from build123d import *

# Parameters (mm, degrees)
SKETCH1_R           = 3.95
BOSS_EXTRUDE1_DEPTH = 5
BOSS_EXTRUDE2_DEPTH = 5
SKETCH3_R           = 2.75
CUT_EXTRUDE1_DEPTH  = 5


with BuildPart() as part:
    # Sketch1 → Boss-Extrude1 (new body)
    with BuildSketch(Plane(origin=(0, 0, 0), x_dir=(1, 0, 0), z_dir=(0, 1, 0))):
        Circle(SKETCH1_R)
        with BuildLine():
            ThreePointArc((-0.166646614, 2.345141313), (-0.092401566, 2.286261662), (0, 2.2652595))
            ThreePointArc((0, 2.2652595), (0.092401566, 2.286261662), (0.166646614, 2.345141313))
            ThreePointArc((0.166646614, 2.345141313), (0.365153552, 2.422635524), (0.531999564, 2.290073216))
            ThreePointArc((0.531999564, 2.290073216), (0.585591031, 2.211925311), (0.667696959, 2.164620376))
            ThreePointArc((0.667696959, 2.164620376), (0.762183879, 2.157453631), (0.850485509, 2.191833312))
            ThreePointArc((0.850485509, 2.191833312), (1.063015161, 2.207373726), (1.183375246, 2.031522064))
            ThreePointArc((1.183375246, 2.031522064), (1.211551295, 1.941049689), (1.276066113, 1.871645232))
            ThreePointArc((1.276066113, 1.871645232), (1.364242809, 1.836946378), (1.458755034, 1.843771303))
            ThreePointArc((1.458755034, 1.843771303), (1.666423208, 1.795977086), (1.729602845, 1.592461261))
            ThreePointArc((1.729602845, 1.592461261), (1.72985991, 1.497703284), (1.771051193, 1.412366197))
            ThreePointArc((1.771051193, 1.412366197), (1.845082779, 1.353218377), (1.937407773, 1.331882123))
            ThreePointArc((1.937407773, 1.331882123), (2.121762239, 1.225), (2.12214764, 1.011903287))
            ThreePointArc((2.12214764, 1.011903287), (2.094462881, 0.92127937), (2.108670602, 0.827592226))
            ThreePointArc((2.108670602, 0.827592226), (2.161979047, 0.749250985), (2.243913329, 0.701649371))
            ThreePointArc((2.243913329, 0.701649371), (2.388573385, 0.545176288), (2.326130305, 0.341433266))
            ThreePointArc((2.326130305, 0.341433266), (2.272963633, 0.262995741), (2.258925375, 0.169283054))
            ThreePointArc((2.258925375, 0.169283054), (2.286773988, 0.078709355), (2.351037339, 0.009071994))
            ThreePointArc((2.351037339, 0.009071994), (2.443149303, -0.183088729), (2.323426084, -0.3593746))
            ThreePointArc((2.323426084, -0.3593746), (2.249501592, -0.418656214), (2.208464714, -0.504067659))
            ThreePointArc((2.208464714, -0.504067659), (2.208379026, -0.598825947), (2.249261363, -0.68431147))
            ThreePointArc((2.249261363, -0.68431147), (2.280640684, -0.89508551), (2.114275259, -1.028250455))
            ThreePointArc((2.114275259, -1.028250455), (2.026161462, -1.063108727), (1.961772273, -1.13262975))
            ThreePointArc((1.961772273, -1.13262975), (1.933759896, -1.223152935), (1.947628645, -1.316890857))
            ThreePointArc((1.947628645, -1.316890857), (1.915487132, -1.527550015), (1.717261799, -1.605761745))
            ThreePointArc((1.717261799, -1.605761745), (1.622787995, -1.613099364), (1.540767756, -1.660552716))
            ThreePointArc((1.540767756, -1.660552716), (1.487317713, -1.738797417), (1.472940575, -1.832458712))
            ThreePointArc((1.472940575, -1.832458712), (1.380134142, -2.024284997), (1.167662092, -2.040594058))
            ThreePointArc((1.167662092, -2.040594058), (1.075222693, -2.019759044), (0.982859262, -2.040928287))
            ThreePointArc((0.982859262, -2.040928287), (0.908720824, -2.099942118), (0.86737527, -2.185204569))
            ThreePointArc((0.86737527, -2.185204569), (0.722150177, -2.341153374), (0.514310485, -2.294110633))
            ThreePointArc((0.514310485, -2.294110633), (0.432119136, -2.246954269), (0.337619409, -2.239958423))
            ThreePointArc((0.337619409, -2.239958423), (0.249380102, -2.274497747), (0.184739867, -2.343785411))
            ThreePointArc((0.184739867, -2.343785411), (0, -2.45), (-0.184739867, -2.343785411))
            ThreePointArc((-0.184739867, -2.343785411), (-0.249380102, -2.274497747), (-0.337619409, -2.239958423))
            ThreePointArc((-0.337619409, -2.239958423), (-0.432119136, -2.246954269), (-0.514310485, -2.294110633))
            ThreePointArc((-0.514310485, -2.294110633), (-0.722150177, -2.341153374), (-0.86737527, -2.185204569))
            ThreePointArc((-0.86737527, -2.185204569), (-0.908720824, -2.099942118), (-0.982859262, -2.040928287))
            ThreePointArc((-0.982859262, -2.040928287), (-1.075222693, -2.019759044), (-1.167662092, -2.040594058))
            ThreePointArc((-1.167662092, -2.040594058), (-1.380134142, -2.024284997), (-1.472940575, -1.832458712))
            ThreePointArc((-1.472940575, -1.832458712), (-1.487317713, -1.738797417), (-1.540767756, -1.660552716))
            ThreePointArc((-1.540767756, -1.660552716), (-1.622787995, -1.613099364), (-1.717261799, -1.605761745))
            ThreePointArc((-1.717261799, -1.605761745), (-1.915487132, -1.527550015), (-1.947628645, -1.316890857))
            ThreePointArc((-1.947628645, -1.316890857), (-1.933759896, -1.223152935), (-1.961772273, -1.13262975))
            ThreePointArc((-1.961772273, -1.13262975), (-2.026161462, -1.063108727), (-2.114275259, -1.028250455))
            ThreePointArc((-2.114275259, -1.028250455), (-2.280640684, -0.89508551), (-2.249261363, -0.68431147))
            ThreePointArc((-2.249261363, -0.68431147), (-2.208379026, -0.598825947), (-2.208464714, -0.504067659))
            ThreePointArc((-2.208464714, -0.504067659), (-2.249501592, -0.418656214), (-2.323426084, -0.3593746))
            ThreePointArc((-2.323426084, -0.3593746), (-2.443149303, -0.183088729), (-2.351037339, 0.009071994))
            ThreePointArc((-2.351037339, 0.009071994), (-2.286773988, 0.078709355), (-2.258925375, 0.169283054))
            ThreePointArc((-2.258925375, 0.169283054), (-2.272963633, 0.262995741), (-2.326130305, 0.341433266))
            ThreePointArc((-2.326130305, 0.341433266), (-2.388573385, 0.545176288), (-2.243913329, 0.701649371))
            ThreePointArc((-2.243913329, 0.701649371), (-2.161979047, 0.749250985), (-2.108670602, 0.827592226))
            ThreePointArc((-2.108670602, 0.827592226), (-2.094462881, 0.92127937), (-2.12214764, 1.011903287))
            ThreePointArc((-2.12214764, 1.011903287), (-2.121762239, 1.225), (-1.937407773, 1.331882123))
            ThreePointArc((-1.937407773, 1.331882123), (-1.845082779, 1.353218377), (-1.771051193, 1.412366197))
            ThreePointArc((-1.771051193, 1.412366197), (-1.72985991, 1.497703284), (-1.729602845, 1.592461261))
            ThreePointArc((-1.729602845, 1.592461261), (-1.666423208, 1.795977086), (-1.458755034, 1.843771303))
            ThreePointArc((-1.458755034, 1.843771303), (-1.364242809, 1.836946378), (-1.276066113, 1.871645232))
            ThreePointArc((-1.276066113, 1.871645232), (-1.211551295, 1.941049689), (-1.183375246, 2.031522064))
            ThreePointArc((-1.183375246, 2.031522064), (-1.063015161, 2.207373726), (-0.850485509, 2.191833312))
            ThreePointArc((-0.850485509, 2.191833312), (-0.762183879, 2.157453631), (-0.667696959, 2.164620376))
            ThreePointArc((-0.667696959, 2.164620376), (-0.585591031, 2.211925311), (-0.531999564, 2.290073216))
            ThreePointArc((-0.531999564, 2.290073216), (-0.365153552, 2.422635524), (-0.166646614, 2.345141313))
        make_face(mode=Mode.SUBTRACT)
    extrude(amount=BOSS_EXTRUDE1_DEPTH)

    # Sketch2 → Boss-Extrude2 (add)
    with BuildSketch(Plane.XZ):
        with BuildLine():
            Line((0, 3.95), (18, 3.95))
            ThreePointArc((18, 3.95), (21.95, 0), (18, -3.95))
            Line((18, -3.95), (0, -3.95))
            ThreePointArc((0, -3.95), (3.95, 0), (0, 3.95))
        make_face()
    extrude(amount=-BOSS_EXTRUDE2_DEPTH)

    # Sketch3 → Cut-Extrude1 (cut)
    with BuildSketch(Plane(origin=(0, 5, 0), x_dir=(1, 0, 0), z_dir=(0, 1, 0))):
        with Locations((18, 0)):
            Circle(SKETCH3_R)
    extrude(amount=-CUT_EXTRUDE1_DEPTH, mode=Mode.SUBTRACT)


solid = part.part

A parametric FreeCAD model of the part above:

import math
import FreeCAD as App
import Part
import Sketcher
Q = App.Units.Quantity

doc = App.newDocument("Part")
body = doc.addObject("PartDesign::Body", "Body")

sketch1 = body.newObject("Sketcher::SketchObject", "Sketch")
sketch1.AttachmentSupport = (doc.getObject("XZ_Plane"), [""])
sketch1.MapMode = "FlatFace"
sketch1.addGeometry([
    Part.Circle(App.Vector(0, 0, 0), App.Vector(0, 0, 1), 3.95),
    Part.ArcOfCircle(Part.Circle(App.Vector(-0.33, -2.21, 0), App.Vector(0, 0, 1), 0.21), math.radians(-158), math.radians(-39)),
    Part.ArcOfCircle(Part.Circle(App.Vector(0, -2.48, 0), App.Vector(0, 0, 1), 0.21), math.radians(90), math.radians(141)),
    Part.ArcOfCircle(Part.Circle(App.Vector(0, -2.48, 0), App.Vector(0, 0, 1), 0.21), math.radians(39), math.radians(90)),
    Part.ArcOfCircle(Part.Circle(App.Vector(0.33, -2.21, 0), App.Vector(0, 0, 1), 0.21), math.radians(-141), math.radians(-22)),
    Part.ArcOfCircle(Part.Circle(App.Vector(0.73, -2.37, 0), App.Vector(0, 0, 1), 0.21), math.radians(107), math.radians(158)),
    Part.ArcOfCircle(Part.Circle(App.Vector(0.73, -2.37, 0), App.Vector(0, 0, 1), 0.21), math.radians(56), math.radians(107)),
    Part.ArcOfCircle(Part.Circle(App.Vector(0.97, -2.01, 0), App.Vector(0, 0, 1), 0.21), math.radians(-124), math.radians(-4)),
    Part.ArcOfCircle(Part.Circle(App.Vector(1.4, -2.05, 0), App.Vector(0, 0, 1), 0.21), math.radians(124), math.radians(176)),
    Part.ArcOfCircle(Part.Circle(App.Vector(1.4, -2.05, 0), App.Vector(0, 0, 1), 0.21), math.radians(73), math.radians(124)),
    Part.ArcOfCircle(Part.Circle(App.Vector(1.52, -1.64, 0), App.Vector(0, 0, 1), 0.21), math.radians(-107), math.radians(13)),
    Part.ArcOfCircle(Part.Circle(App.Vector(1.94, -1.55, 0), App.Vector(0, 0, 1), 0.21), math.radians(141), math.radians(193)),
    Part.ArcOfCircle(Part.Circle(App.Vector(1.94, -1.55, 0), App.Vector(0, 0, 1), 0.21), math.radians(90), math.radians(141)),
    Part.ArcOfCircle(Part.Circle(App.Vector(1.94, -1.12, 0), App.Vector(0, 0, 1), 0.21), math.radians(-90), math.radians(30)),
    Part.ArcOfCircle(Part.Circle(App.Vector(2.31, -0.91, 0), App.Vector(0, 0, 1), 0.21), math.radians(159), math.radians(210)),
    Part.ArcOfCircle(Part.Circle(App.Vector(2.31, -0.91, 0), App.Vector(0, 0, 1), 0.21), math.radians(107), math.radians(159)),
    Part.ArcOfCircle(Part.Circle(App.Vector(2.18, -0.5, 0), App.Vector(0, 0, 1), 0.21), math.radians(-73), math.radians(47)),
    Part.ArcOfCircle(Part.Circle(App.Vector(2.47, -0.19, 0), App.Vector(0, 0, 1), 0.21), math.radians(176), math.radians(227)),
    Part.ArcOfCircle(Part.Circle(App.Vector(2.47, -0.19, 0), App.Vector(0, 0, 1), 0.21), math.radians(124), math.radians(176)),
    Part.ArcOfCircle(Part.Circle(App.Vector(2.23, 0.17, 0), App.Vector(0, 0, 1), 0.21), math.radians(-56), math.radians(64)),
    Part.ArcOfCircle(Part.Circle(App.Vector(2.42, 0.55, 0), App.Vector(0, 0, 1), 0.21), math.radians(-167), math.radians(-116)),
    Part.ArcOfCircle(Part.Circle(App.Vector(2.42, 0.55, 0), App.Vector(0, 0, 1), 0.21), math.radians(142), math.radians(193)),
    Part.ArcOfCircle(Part.Circle(App.Vector(2.08, 0.82, 0), App.Vector(0, 0, 1), 0.21), math.radians(-38), math.radians(81)),
    Part.ArcOfCircle(Part.Circle(App.Vector(2.15, 1.24, 0), App.Vector(0, 0, 1), 0.21), math.radians(-150), math.radians(-99)),
    Part.ArcOfCircle(Part.Circle(App.Vector(2.15, 1.24, 0), App.Vector(0, 0, 1), 0.21), math.radians(159), math.radians(210)),
    Part.ArcOfCircle(Part.Circle(App.Vector(1.75, 1.39, 0), App.Vector(0, 0, 1), 0.21), math.radians(-21), math.radians(98)),
    Part.ArcOfCircle(Part.Circle(App.Vector(1.69, 1.82, 0), App.Vector(0, 0, 1), 0.21), math.radians(-133), math.radians(-82)),
    Part.ArcOfCircle(Part.Circle(App.Vector(1.69, 1.82, 0), App.Vector(0, 0, 1), 0.21), math.radians(176), math.radians(227)),
    Part.ArcOfCircle(Part.Circle(App.Vector(1.26, 1.85, 0), App.Vector(0, 0, 1), 0.21), math.radians(-4), math.radians(116)),
    Part.ArcOfCircle(Part.Circle(App.Vector(1.08, 2.23, 0), App.Vector(0, 0, 1), 0.21), math.radians(-116), math.radians(-64)),
    Part.ArcOfCircle(Part.Circle(App.Vector(1.08, 2.23, 0), App.Vector(0, 0, 1), 0.21), math.radians(-167), math.radians(-116)),
    Part.ArcOfCircle(Part.Circle(App.Vector(0.66, 2.14, 0), App.Vector(0, 0, 1), 0.21), math.radians(13), math.radians(133)),
    Part.ArcOfCircle(Part.Circle(App.Vector(0.37, 2.45, 0), App.Vector(0, 0, 1), 0.21), math.radians(-99), math.radians(-47)),
    Part.ArcOfCircle(Part.Circle(App.Vector(0.37, 2.45, 0), App.Vector(0, 0, 1), 0.21), math.radians(-150), math.radians(-99)),
    Part.ArcOfCircle(Part.Circle(App.Vector(0, 2.24, 0), App.Vector(0, 0, 1), 0.21), math.radians(30), math.radians(150)),
    Part.ArcOfCircle(Part.Circle(App.Vector(-0.37, 2.45, 0), App.Vector(0, 0, 1), 0.21), math.radians(-81), math.radians(-30)),
    Part.ArcOfCircle(Part.Circle(App.Vector(-0.37, 2.45, 0), App.Vector(0, 0, 1), 0.21), math.radians(-133), math.radians(-81)),
    Part.ArcOfCircle(Part.Circle(App.Vector(-0.66, 2.14, 0), App.Vector(0, 0, 1), 0.21), math.radians(47), math.radians(167)),
    Part.ArcOfCircle(Part.Circle(App.Vector(-1.08, 2.23, 0), App.Vector(0, 0, 1), 0.21), math.radians(-64), math.radians(-13)),
    Part.ArcOfCircle(Part.Circle(App.Vector(-1.08, 2.23, 0), App.Vector(0, 0, 1), 0.21), math.radians(-116), math.radians(-64)),
    Part.ArcOfCircle(Part.Circle(App.Vector(-1.26, 1.85, 0), App.Vector(0, 0, 1), 0.21), math.radians(64), math.radians(184)),
    Part.ArcOfCircle(Part.Circle(App.Vector(-1.69, 1.82, 0), App.Vector(0, 0, 1), 0.21), math.radians(-47), math.radians(4)),
    Part.ArcOfCircle(Part.Circle(App.Vector(-1.69, 1.82, 0), App.Vector(0, 0, 1), 0.21), math.radians(-98), math.radians(-47)),
    Part.ArcOfCircle(Part.Circle(App.Vector(-1.75, 1.39, 0), App.Vector(0, 0, 1), 0.21), math.radians(82), math.radians(201)),
    Part.ArcOfCircle(Part.Circle(App.Vector(-2.15, 1.24, 0), App.Vector(0, 0, 1), 0.21), math.radians(-30), math.radians(21)),
    Part.ArcOfCircle(Part.Circle(App.Vector(-2.15, 1.24, 0), App.Vector(0, 0, 1), 0.21), math.radians(-81), math.radians(-30)),
    Part.ArcOfCircle(Part.Circle(App.Vector(-2.08, 0.82, 0), App.Vector(0, 0, 1), 0.21), math.radians(99), math.radians(218)),
    Part.ArcOfCircle(Part.Circle(App.Vector(-2.42, 0.55, 0), App.Vector(0, 0, 1), 0.21), math.radians(-13), math.radians(38)),
    Part.ArcOfCircle(Part.Circle(App.Vector(-2.42, 0.55, 0), App.Vector(0, 0, 1), 0.21), math.radians(-64), math.radians(-13)),
    Part.ArcOfCircle(Part.Circle(App.Vector(-2.23, 0.17, 0), App.Vector(0, 0, 1), 0.21), math.radians(116), math.radians(236)),
    Part.ArcOfCircle(Part.Circle(App.Vector(-2.47, -0.19, 0), App.Vector(0, 0, 1), 0.21), math.radians(4), math.radians(56)),
    Part.ArcOfCircle(Part.Circle(App.Vector(-2.47, -0.19, 0), App.Vector(0, 0, 1), 0.21), math.radians(-47), math.radians(4)),
    Part.ArcOfCircle(Part.Circle(App.Vector(-2.18, -0.5, 0), App.Vector(0, 0, 1), 0.21), math.radians(133), math.radians(253)),
    Part.ArcOfCircle(Part.Circle(App.Vector(-2.31, -0.91, 0), App.Vector(0, 0, 1), 0.21), math.radians(21), math.radians(73)),
    Part.ArcOfCircle(Part.Circle(App.Vector(-2.31, -0.91, 0), App.Vector(0, 0, 1), 0.21), math.radians(-30), math.radians(21)),
    Part.ArcOfCircle(Part.Circle(App.Vector(-1.94, -1.12, 0), App.Vector(0, 0, 1), 0.21), math.radians(150), math.radians(270)),
    Part.ArcOfCircle(Part.Circle(App.Vector(-1.94, -1.55, 0), App.Vector(0, 0, 1), 0.21), math.radians(39), math.radians(90)),
    Part.ArcOfCircle(Part.Circle(App.Vector(-1.94, -1.55, 0), App.Vector(0, 0, 1), 0.21), math.radians(-13), math.radians(39)),
    Part.ArcOfCircle(Part.Circle(App.Vector(-1.52, -1.64, 0), App.Vector(0, 0, 1), 0.21), math.radians(167), math.radians(287)),
    Part.ArcOfCircle(Part.Circle(App.Vector(-1.4, -2.05, 0), App.Vector(0, 0, 1), 0.21), math.radians(56), math.radians(107)),
    Part.ArcOfCircle(Part.Circle(App.Vector(-1.4, -2.05, 0), App.Vector(0, 0, 1), 0.21), math.radians(4), math.radians(56)),
    Part.ArcOfCircle(Part.Circle(App.Vector(-0.97, -2.01, 0), App.Vector(0, 0, 1), 0.21), math.radians(-176), math.radians(-56)),
    Part.ArcOfCircle(Part.Circle(App.Vector(-0.73, -2.37, 0), App.Vector(0, 0, 1), 0.21), math.radians(73), math.radians(124)),
    Part.ArcOfCircle(Part.Circle(App.Vector(-0.73, -2.37, 0), App.Vector(0, 0, 1), 0.21), math.radians(22), math.radians(73)),
], False)
sketch1.addConstraint([
    Sketcher.Constraint("Tangent", 1, 2, 2, 2),
    Sketcher.Constraint("Tangent", 2, 1, 3, 2),
    Sketcher.Constraint("Tangent", 3, 1, 4, 1),
    Sketcher.Constraint("Tangent", 4, 2, 5, 2),
    Sketcher.Constraint("Tangent", 5, 1, 6, 2),
    Sketcher.Constraint("Tangent", 6, 1, 7, 1),
    Sketcher.Constraint("Tangent", 7, 2, 8, 2),
    Sketcher.Constraint("Tangent", 8, 1, 9, 2),
    Sketcher.Constraint("Tangent", 9, 1, 10, 1),
    Sketcher.Constraint("Tangent", 10, 2, 11, 2),
    Sketcher.Constraint("Tangent", 11, 1, 12, 2),
    Sketcher.Constraint("Tangent", 12, 1, 13, 1),
    Sketcher.Constraint("Tangent", 13, 2, 14, 2),
    Sketcher.Constraint("Tangent", 14, 1, 15, 2),
    Sketcher.Constraint("Tangent", 15, 1, 16, 1),
    Sketcher.Constraint("Tangent", 16, 2, 17, 2),
    Sketcher.Constraint("Tangent", 17, 1, 18, 2),
    Sketcher.Constraint("Tangent", 18, 1, 19, 1),
    Sketcher.Constraint("Tangent", 19, 2, 20, 2),
    Sketcher.Constraint("Tangent", 20, 1, 21, 2),
    Sketcher.Constraint("Tangent", 21, 1, 22, 1),
    Sketcher.Constraint("Tangent", 22, 2, 23, 2),
    Sketcher.Constraint("Tangent", 23, 1, 24, 2),
    Sketcher.Constraint("Tangent", 24, 1, 25, 1),
    Sketcher.Constraint("Tangent", 25, 2, 26, 2),
    Sketcher.Constraint("Tangent", 26, 1, 27, 2),
    Sketcher.Constraint("Tangent", 27, 1, 28, 1),
    Sketcher.Constraint("Tangent", 28, 2, 29, 2),
    Sketcher.Constraint("Tangent", 29, 1, 30, 2),
    Sketcher.Constraint("Tangent", 30, 1, 31, 1),
    Sketcher.Constraint("Tangent", 31, 2, 32, 2),
    Sketcher.Constraint("Tangent", 32, 1, 33, 2),
    Sketcher.Constraint("Tangent", 33, 1, 34, 1),
    Sketcher.Constraint("Tangent", 34, 2, 35, 2),
    Sketcher.Constraint("Tangent", 35, 1, 36, 2),
    Sketcher.Constraint("Tangent", 36, 1, 37, 1),
    Sketcher.Constraint("Tangent", 37, 2, 38, 2),
    Sketcher.Constraint("Tangent", 38, 1, 39, 2),
    Sketcher.Constraint("Tangent", 39, 1, 40, 1),
    Sketcher.Constraint("Tangent", 40, 2, 41, 2),
    Sketcher.Constraint("Tangent", 41, 1, 42, 2),
    Sketcher.Constraint("Tangent", 42, 1, 43, 1),
    Sketcher.Constraint("Tangent", 43, 2, 44, 2),
    Sketcher.Constraint("Tangent", 44, 1, 45, 2),
    Sketcher.Constraint("Tangent", 45, 1, 46, 1),
    Sketcher.Constraint("Tangent", 46, 2, 47, 2),
    Sketcher.Constraint("Tangent", 47, 1, 48, 2),
    Sketcher.Constraint("Tangent", 48, 1, 49, 1),
    Sketcher.Constraint("Tangent", 49, 2, 50, 2),
    Sketcher.Constraint("Tangent", 50, 1, 51, 2),
    Sketcher.Constraint("Tangent", 51, 1, 52, 1),
    Sketcher.Constraint("Tangent", 52, 2, 53, 2),
    Sketcher.Constraint("Tangent", 53, 1, 54, 2),
    Sketcher.Constraint("Tangent", 54, 1, 55, 1),
    Sketcher.Constraint("Tangent", 55, 2, 56, 2),
    Sketcher.Constraint("Tangent", 56, 1, 57, 2),
    Sketcher.Constraint("Tangent", 57, 1, 58, 1),
    Sketcher.Constraint("Tangent", 58, 2, 59, 2),
    Sketcher.Constraint("Tangent", 59, 1, 60, 2),
    Sketcher.Constraint("Tangent", 60, 1, 61, 1),
    Sketcher.Constraint("Tangent", 61, 2, 62, 2),
    Sketcher.Constraint("Tangent", 62, 1, 63, 2),
    Sketcher.Constraint("Tangent", 63, 1, 1, 1),
    Sketcher.Constraint("Coincident", 0, 3, -1, 1),
    Sketcher.Constraint("Equal", 1, 2),
    Sketcher.Constraint("Equal", 2, 3),
    Sketcher.Constraint("Equal", 3, 4),
    Sketcher.Constraint("Equal", 4, 5),
    Sketcher.Constraint("Equal", 5, 6),
    Sketcher.Constraint("Equal", 6, 7),
    Sketcher.Constraint("Equal", 7, 8),
    Sketcher.Constraint("Equal", 8, 9),
    Sketcher.Constraint("Equal", 9, 10),
    Sketcher.Constraint("Equal", 10, 11),
    Sketcher.Constraint("Equal", 11, 12),
    Sketcher.Constraint("Equal", 12, 13),
    Sketcher.Constraint("Equal", 13, 14),
    Sketcher.Constraint("Equal", 14, 15),
    Sketcher.Constraint("Equal", 15, 16),
    Sketcher.Constraint("Equal", 16, 17),
    Sketcher.Constraint("Equal", 17, 18),
    Sketcher.Constraint("Equal", 18, 19),
    Sketcher.Constraint("Equal", 19, 20),
    Sketcher.Constraint("Equal", 20, 21),
    Sketcher.Constraint("Equal", 21, 22),
    Sketcher.Constraint("Equal", 22, 23),
    Sketcher.Constraint("Equal", 23, 24),
    Sketcher.Constraint("Equal", 24, 25),
    Sketcher.Constraint("Equal", 25, 26),
    Sketcher.Constraint("Equal", 26, 27),
    Sketcher.Constraint("Equal", 27, 28),
    Sketcher.Constraint("Equal", 28, 29),
    Sketcher.Constraint("Equal", 29, 30),
    Sketcher.Constraint("Equal", 30, 31),
    Sketcher.Constraint("Equal", 31, 32),
    Sketcher.Constraint("Equal", 32, 33),
    Sketcher.Constraint("Equal", 33, 34),
    Sketcher.Constraint("Equal", 34, 35),
    Sketcher.Constraint("Equal", 35, 36),
    Sketcher.Constraint("Equal", 36, 37),
    Sketcher.Constraint("Equal", 37, 38),
    Sketcher.Constraint("Equal", 38, 39),
    Sketcher.Constraint("Equal", 39, 40),
    Sketcher.Constraint("Equal", 40, 41),
    Sketcher.Constraint("Equal", 41, 42),
    Sketcher.Constraint("Equal", 42, 43),
    Sketcher.Constraint("Equal", 43, 44),
    Sketcher.Constraint("Equal", 44, 45),
    Sketcher.Constraint("Equal", 45, 46),
    Sketcher.Constraint("Equal", 46, 47),
    Sketcher.Constraint("Equal", 47, 48),
    Sketcher.Constraint("Equal", 48, 49),
    Sketcher.Constraint("Equal", 49, 50),
    Sketcher.Constraint("Equal", 50, 51),
    Sketcher.Constraint("Equal", 51, 52),
    Sketcher.Constraint("Equal", 52, 53),
    Sketcher.Constraint("Equal", 53, 54),
    Sketcher.Constraint("Equal", 54, 55),
    Sketcher.Constraint("Equal", 55, 56),
    Sketcher.Constraint("Equal", 56, 57),
    Sketcher.Constraint("Equal", 57, 58),
    Sketcher.Constraint("Equal", 58, 59),
    Sketcher.Constraint("Equal", 59, 60),
    Sketcher.Constraint("Equal", 60, 61),
    Sketcher.Constraint("Equal", 61, 62),
    Sketcher.Constraint("Equal", 62, 63),
    Sketcher.Constraint("Symmetric", 1, 3, 4, 3, -2),
    Sketcher.Constraint("Symmetric", 32, 3, 35, 3, -2),
    Sketcher.Constraint("Symmetric", 29, 3, 38, 3, -2),
    Sketcher.Constraint("Symmetric", 26, 3, 41, 3, -2),
    Sketcher.Constraint("Symmetric", 23, 3, 44, 3, -2),
    Sketcher.Constraint("Symmetric", 20, 3, 47, 3, -2),
    Sketcher.Constraint("Symmetric", 17, 3, 50, 3, -2),
    Sketcher.Constraint("Symmetric", 14, 3, 53, 3, -2),
    Sketcher.Constraint("Symmetric", 11, 3, 56, 3, -2),
    Sketcher.Constraint("Symmetric", 8, 3, 59, 3, -2),
    Sketcher.Constraint("Symmetric", 5, 1, 62, 1, -2),
    Sketcher.Constraint("PointOnObject", 2, 1, -2),
    Sketcher.Constraint("Horizontal", 32, 1, 35, 1),
    Sketcher.Constraint("Horizontal", 29, 1, 38, 1),
    Sketcher.Constraint("Horizontal", 26, 1, 41, 1),
    Sketcher.Constraint("Horizontal", 23, 1, 44, 1),
    Sketcher.Constraint("Horizontal", 20, 1, 47, 1),
    Sketcher.Constraint("Horizontal", 17, 1, 50, 1),
    Sketcher.Constraint("Horizontal", 14, 1, 53, 1),
    Sketcher.Constraint("Horizontal", 11, 1, 56, 1),
    Sketcher.Constraint("Horizontal", 8, 1, 59, 1),
    Sketcher.Constraint("Diameter", 0, Q("7.9 mm")),
    Sketcher.Constraint("DistanceX", -1, 1, 4, 2, Q("0.532 mm")),
    Sketcher.Constraint("Radius", 1, Q("0.213767 mm")),
    Sketcher.Constraint("DistanceX", -1, 1, 23, 3, Q("2.1469 mm")),
    Sketcher.Constraint("DistanceY", 5, 3, -1, 1, Q("2.36889 mm")),
    Sketcher.Constraint("DistanceX", -1, 1, 11, 3, Q("1.938181 mm")),
    Sketcher.Constraint("DistanceX", -1, 1, 14, 3, Q("2.307661 mm")),
    Sketcher.Constraint("DistanceY", 14, 3, -1, 1, Q("0.90569 mm")),
    Sketcher.Constraint("DistanceY", 16, 3, -1, 1, Q("0.497609 mm")),
    Sketcher.Constraint("DistanceX", -1, 1, 19, 3, Q("2.22998 mm")),
    Sketcher.Constraint("DistanceX", -1, 1, 22, 3, Q("2.081651 mm")),
    Sketcher.Constraint("DistanceY", -1, 1, 25, 3, Q("1.394268 mm")),
    Sketcher.Constraint("DistanceX", -1, 1, 29, 3, Q("1.075609 mm")),
    Sketcher.Constraint("DistanceX", -1, 1, 31, 3, Q("0.659141 mm")),
    Sketcher.Constraint("DistanceX", -1, 1, 32, 3, Q("0.36948 mm")),
    Sketcher.Constraint("DistanceY", 1, 2, -1, 1, Q("2.345141 mm")),
    Sketcher.Constraint("DistanceY", 5, 1, -1, 1, Q("2.16462 mm")),
    Sketcher.Constraint("DistanceY", 9, 1, -1, 1, Q("1.843771 mm")),
    Sketcher.Constraint("DistanceY", 10, 2, -1, 1, Q("1.592461 mm")),
    Sketcher.Constraint("DistanceX", -1, 1, 11, 1, Q("1.771051 mm")),
    Sketcher.Constraint("DistanceX", -1, 1, 14, 1, Q("2.108671 mm")),
    Sketcher.Constraint("DistanceX", -1, 1, 16, 2, Q("2.32613 mm")),
    Sketcher.Constraint("DistanceX", -1, 1, 21, 1, Q("2.249261 mm")),
    Sketcher.Constraint("DistanceY", -1, 1, 23, 1, Q("1.13263 mm")),
    Sketcher.Constraint("DistanceX", -1, 1, 25, 2, Q("1.717262 mm")),
    Sketcher.Constraint("DistanceX", -1, 1, 27, 1, Q("1.472941 mm")),
    Sketcher.Constraint("DistanceX", -1, 1, 29, 1, Q("0.982859 mm")),
    Sketcher.Constraint("DistanceX", -1, 1, 32, 1, Q("0.337619 mm")),
    Sketcher.Constraint("DistanceX", -1, 1, 7, 3, Q("0.970265 mm")),
    Sketcher.Constraint("DistanceX", -1, 1, 8, 1, Q("1.276066 mm")),
    Sketcher.Constraint("DistanceX", -1, 1, 17, 1, Q("2.258925 mm")),
    Sketcher.Constraint("DistanceX", -1, 1, 20, 1, Q("2.208465 mm")),
    Sketcher.Constraint("DistanceX", -1, 1, 26, 1, Q("1.540768 mm")),
])
pad1 = body.newObject("PartDesign::Pad", "Pad")
pad1.Profile = sketch1
pad1.Length = 5
pad1.Reversed = True

sketch2 = body.newObject("Sketcher::SketchObject", "Sketch001")
sketch2.AttachmentSupport = (doc.getObject("XZ_Plane"), [""])
sketch2.MapMode = "FlatFace"
sketch2.addGeometry([
    Part.LineSegment(App.Vector(18, 4, 0), App.Vector(0, 4, 0)),
    Part.ArcOfCircle(Part.Circle(App.Vector(0, 0, 0), App.Vector(0, 0, 1), 4), math.radians(-90), math.radians(90)),
    Part.LineSegment(App.Vector(0, -4, 0), App.Vector(18, -4, 0)),
    Part.ArcOfCircle(Part.Circle(App.Vector(18, 0, 0), App.Vector(0, 0, 1), 4), math.radians(-90), math.radians(90)),
], False)
sketch2.addConstraint([
    Sketcher.Constraint("Tangent", 0, 2, 1, 2),
    Sketcher.Constraint("Tangent", 1, 1, 2, 1),
    Sketcher.Constraint("Tangent", 2, 2, 3, 1),
    Sketcher.Constraint("Tangent", 3, 2, 0, 1),
    Sketcher.Constraint("Horizontal", 0),
    Sketcher.Constraint("Horizontal", 2),
    Sketcher.Constraint("Coincident", 1, 3, -1, 1),
    Sketcher.Constraint("DistanceX", 0, 2, 0, 1, Q("18 mm")),
    Sketcher.Constraint("Radius", 1, Q("3.95 mm")),
])
pad2 = body.newObject("PartDesign::Pad", "Pad001")
pad2.Profile = sketch2
pad2.Length = 5
pad2.Reversed = True

sketch3 = body.newObject("Sketcher::SketchObject", "Sketch002")
sketch3.AttachmentSupport = (doc.getObject("XZ_Plane"), [""])
sketch3.MapMode = "FlatFace"
sketch3.AttachmentOffset = App.Placement(App.Vector(0, 0, -5), App.Rotation())
sketch3.addGeometry(Part.Circle(App.Vector(18, 0, 0), App.Vector(0, 0, 1), 2.8), False)
sketch3.addConstraint([
    Sketcher.Constraint("PointOnObject", 0, 3, -1),
    Sketcher.Constraint("Diameter", 0, Q("5.5 mm")),
    Sketcher.Constraint("DistanceX", -1, 1, 0, 3, Q("18 mm")),
])
pocket1 = body.newObject("PartDesign::Pocket", "Pocket")
pocket1.Profile = sketch3
pocket1.Length = 5
pocket1.Reversed = True

doc.recompute()
